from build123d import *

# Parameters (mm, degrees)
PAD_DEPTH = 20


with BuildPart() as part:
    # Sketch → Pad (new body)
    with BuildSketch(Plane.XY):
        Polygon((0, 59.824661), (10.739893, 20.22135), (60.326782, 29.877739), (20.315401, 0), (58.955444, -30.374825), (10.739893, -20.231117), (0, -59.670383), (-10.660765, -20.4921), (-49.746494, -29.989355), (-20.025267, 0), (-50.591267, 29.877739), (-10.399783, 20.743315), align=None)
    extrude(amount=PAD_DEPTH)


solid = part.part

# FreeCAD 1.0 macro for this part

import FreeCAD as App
import Part
import Sketcher
from FreeCAD import Vector
Q = App.Units.Quantity

doc = App.newDocument("Part")
body = doc.addObject("PartDesign::Body", "Body")

sketch1 = body.newObject("Sketcher::SketchObject", "Sketch")
sketch1.AttachmentSupport = (doc.getObject("XY_Plane"), [""])
sketch1.MapMode = "FlatFace"
sketch1.addGeometry([
    Part.LineSegment(Vector(11, 20, 0), Vector(0, 60, 0)),
    Part.LineSegment(Vector(0, 60, 0), Vector(-10, 21, 0)),
    Part.LineSegment(Vector(-10, 21, 0), Vector(-51, 30, 0)),
    Part.LineSegment(Vector(-51, 30, 0), Vector(-20, 0, 0)),
    Part.LineSegment(Vector(-20, 0, 0), Vector(-50, -30, 0)),
    Part.LineSegment(Vector(-50, -30, 0), Vector(-11, -20, 0)),
    Part.LineSegment(Vector(-11, -20, 0), Vector(0, -60, 0)),
    Part.LineSegment(Vector(0, -60, 0), Vector(11, -20, 0)),
    Part.LineSegment(Vector(11, -20, 0), Vector(59, -30, 0)),
    Part.LineSegment(Vector(59, -30, 0), Vector(20, 0, 0)),
    Part.LineSegment(Vector(20, 0, 0), Vector(60, 30, 0)),
    Part.LineSegment(Vector(60, 30, 0), Vector(11, 20, 0)),
], False)
sketch1.addConstraint([
    Sketcher.Constraint("Coincident", 0, 2, 1, 1),
    Sketcher.Constraint("Coincident", 1, 2, 2, 1),
    Sketcher.Constraint("Coincident", 2, 2, 3, 1),
    Sketcher.Constraint("Coincident", 3, 2, 4, 1),
    Sketcher.Constraint("Coincident", 4, 2, 5, 1),
    Sketcher.Constraint("Coincident", 5, 2, 6, 1),
    Sketcher.Constraint("Coincident", 6, 2, 7, 1),
    Sketcher.Constraint("Coincident", 7, 2, 8, 1),
    Sketcher.Constraint("Coincident", 8, 2, 9, 1),
    Sketcher.Constraint("Coincident", 9, 2, 10, 1),
    Sketcher.Constraint("Coincident", 10, 2, 11, 1),
    Sketcher.Constraint("Coincident", 11, 2, 0, 1),
    Sketcher.Constraint("PointOnObject", 0, 2, -2),
    Sketcher.Constraint("PointOnObject", 3, 2, -1),
    Sketcher.Constraint("PointOnObject", 6, 2, -2),
    Sketcher.Constraint("PointOnObject", 9, 2, -1),
    Sketcher.Constraint("Horizontal", 2, 2, 10, 2),
    Sketcher.Constraint("Vertical", 7, 2, 11, 2),
    Sketcher.Constraint("DistanceX", 2, 2, 3, 2, Q("30.566 mm")),
    Sketcher.Constraint("DistanceY", 5, 2, -1, 1, Q("20.4921 mm")),
    Sketcher.Constraint("DistanceX", -1, 1, 9, 2, Q("20.315401 mm")),
    Sketcher.Constraint("Distance", 3, Q("42.742948 mm")),
    Sketcher.Constraint("Distance", 5, Q("40.223029 mm")),
    Sketcher.Constraint("Distance", 6, Q("40.60283 mm")),
    Sketcher.Constraint("DistanceY", -1, 1, 0, 2, Q("59.824661 mm")),
    Sketcher.Constraint("DistanceY", -1, 1, 11, 2, Q("20.22135 mm")),
    Sketcher.Constraint("DistanceX", 4, 2, 1, 2, Q("39.346711 mm")),
    Sketcher.Constraint("DistanceY", 4, 2, 1, 2, Q("50.73267 mm")),
    Sketcher.Constraint("DistanceX", 4, 2, 5, 2, Q("39.085729 mm")),
    Sketcher.Constraint("DistanceY", 6, 2, 4, 2, Q("29.681028 mm")),
    Sketcher.Constraint("DistanceX", 5, 2, 7, 2, Q("21.400658 mm")),
    Sketcher.Constraint("DistanceX", 3, 2, 7, 2, Q("30.76516 mm")),
    Sketcher.Constraint("DistanceX", 7, 2, 8, 2, Q("48.215551 mm")),
    Sketcher.Constraint("DistanceY", 6, 2, 8, 2, Q("29.295558 mm")),
    Sketcher.Constraint("DistanceX", 9, 2, 10, 2, Q("40.011381 mm")),
    Sketcher.Constraint("Distance", 7, Q("40.875433 mm")),
])
pad1 = body.newObject("PartDesign::Pad", "Pad")
pad1.Profile = sketch1
pad1.Length = 20

doc.recompute()
